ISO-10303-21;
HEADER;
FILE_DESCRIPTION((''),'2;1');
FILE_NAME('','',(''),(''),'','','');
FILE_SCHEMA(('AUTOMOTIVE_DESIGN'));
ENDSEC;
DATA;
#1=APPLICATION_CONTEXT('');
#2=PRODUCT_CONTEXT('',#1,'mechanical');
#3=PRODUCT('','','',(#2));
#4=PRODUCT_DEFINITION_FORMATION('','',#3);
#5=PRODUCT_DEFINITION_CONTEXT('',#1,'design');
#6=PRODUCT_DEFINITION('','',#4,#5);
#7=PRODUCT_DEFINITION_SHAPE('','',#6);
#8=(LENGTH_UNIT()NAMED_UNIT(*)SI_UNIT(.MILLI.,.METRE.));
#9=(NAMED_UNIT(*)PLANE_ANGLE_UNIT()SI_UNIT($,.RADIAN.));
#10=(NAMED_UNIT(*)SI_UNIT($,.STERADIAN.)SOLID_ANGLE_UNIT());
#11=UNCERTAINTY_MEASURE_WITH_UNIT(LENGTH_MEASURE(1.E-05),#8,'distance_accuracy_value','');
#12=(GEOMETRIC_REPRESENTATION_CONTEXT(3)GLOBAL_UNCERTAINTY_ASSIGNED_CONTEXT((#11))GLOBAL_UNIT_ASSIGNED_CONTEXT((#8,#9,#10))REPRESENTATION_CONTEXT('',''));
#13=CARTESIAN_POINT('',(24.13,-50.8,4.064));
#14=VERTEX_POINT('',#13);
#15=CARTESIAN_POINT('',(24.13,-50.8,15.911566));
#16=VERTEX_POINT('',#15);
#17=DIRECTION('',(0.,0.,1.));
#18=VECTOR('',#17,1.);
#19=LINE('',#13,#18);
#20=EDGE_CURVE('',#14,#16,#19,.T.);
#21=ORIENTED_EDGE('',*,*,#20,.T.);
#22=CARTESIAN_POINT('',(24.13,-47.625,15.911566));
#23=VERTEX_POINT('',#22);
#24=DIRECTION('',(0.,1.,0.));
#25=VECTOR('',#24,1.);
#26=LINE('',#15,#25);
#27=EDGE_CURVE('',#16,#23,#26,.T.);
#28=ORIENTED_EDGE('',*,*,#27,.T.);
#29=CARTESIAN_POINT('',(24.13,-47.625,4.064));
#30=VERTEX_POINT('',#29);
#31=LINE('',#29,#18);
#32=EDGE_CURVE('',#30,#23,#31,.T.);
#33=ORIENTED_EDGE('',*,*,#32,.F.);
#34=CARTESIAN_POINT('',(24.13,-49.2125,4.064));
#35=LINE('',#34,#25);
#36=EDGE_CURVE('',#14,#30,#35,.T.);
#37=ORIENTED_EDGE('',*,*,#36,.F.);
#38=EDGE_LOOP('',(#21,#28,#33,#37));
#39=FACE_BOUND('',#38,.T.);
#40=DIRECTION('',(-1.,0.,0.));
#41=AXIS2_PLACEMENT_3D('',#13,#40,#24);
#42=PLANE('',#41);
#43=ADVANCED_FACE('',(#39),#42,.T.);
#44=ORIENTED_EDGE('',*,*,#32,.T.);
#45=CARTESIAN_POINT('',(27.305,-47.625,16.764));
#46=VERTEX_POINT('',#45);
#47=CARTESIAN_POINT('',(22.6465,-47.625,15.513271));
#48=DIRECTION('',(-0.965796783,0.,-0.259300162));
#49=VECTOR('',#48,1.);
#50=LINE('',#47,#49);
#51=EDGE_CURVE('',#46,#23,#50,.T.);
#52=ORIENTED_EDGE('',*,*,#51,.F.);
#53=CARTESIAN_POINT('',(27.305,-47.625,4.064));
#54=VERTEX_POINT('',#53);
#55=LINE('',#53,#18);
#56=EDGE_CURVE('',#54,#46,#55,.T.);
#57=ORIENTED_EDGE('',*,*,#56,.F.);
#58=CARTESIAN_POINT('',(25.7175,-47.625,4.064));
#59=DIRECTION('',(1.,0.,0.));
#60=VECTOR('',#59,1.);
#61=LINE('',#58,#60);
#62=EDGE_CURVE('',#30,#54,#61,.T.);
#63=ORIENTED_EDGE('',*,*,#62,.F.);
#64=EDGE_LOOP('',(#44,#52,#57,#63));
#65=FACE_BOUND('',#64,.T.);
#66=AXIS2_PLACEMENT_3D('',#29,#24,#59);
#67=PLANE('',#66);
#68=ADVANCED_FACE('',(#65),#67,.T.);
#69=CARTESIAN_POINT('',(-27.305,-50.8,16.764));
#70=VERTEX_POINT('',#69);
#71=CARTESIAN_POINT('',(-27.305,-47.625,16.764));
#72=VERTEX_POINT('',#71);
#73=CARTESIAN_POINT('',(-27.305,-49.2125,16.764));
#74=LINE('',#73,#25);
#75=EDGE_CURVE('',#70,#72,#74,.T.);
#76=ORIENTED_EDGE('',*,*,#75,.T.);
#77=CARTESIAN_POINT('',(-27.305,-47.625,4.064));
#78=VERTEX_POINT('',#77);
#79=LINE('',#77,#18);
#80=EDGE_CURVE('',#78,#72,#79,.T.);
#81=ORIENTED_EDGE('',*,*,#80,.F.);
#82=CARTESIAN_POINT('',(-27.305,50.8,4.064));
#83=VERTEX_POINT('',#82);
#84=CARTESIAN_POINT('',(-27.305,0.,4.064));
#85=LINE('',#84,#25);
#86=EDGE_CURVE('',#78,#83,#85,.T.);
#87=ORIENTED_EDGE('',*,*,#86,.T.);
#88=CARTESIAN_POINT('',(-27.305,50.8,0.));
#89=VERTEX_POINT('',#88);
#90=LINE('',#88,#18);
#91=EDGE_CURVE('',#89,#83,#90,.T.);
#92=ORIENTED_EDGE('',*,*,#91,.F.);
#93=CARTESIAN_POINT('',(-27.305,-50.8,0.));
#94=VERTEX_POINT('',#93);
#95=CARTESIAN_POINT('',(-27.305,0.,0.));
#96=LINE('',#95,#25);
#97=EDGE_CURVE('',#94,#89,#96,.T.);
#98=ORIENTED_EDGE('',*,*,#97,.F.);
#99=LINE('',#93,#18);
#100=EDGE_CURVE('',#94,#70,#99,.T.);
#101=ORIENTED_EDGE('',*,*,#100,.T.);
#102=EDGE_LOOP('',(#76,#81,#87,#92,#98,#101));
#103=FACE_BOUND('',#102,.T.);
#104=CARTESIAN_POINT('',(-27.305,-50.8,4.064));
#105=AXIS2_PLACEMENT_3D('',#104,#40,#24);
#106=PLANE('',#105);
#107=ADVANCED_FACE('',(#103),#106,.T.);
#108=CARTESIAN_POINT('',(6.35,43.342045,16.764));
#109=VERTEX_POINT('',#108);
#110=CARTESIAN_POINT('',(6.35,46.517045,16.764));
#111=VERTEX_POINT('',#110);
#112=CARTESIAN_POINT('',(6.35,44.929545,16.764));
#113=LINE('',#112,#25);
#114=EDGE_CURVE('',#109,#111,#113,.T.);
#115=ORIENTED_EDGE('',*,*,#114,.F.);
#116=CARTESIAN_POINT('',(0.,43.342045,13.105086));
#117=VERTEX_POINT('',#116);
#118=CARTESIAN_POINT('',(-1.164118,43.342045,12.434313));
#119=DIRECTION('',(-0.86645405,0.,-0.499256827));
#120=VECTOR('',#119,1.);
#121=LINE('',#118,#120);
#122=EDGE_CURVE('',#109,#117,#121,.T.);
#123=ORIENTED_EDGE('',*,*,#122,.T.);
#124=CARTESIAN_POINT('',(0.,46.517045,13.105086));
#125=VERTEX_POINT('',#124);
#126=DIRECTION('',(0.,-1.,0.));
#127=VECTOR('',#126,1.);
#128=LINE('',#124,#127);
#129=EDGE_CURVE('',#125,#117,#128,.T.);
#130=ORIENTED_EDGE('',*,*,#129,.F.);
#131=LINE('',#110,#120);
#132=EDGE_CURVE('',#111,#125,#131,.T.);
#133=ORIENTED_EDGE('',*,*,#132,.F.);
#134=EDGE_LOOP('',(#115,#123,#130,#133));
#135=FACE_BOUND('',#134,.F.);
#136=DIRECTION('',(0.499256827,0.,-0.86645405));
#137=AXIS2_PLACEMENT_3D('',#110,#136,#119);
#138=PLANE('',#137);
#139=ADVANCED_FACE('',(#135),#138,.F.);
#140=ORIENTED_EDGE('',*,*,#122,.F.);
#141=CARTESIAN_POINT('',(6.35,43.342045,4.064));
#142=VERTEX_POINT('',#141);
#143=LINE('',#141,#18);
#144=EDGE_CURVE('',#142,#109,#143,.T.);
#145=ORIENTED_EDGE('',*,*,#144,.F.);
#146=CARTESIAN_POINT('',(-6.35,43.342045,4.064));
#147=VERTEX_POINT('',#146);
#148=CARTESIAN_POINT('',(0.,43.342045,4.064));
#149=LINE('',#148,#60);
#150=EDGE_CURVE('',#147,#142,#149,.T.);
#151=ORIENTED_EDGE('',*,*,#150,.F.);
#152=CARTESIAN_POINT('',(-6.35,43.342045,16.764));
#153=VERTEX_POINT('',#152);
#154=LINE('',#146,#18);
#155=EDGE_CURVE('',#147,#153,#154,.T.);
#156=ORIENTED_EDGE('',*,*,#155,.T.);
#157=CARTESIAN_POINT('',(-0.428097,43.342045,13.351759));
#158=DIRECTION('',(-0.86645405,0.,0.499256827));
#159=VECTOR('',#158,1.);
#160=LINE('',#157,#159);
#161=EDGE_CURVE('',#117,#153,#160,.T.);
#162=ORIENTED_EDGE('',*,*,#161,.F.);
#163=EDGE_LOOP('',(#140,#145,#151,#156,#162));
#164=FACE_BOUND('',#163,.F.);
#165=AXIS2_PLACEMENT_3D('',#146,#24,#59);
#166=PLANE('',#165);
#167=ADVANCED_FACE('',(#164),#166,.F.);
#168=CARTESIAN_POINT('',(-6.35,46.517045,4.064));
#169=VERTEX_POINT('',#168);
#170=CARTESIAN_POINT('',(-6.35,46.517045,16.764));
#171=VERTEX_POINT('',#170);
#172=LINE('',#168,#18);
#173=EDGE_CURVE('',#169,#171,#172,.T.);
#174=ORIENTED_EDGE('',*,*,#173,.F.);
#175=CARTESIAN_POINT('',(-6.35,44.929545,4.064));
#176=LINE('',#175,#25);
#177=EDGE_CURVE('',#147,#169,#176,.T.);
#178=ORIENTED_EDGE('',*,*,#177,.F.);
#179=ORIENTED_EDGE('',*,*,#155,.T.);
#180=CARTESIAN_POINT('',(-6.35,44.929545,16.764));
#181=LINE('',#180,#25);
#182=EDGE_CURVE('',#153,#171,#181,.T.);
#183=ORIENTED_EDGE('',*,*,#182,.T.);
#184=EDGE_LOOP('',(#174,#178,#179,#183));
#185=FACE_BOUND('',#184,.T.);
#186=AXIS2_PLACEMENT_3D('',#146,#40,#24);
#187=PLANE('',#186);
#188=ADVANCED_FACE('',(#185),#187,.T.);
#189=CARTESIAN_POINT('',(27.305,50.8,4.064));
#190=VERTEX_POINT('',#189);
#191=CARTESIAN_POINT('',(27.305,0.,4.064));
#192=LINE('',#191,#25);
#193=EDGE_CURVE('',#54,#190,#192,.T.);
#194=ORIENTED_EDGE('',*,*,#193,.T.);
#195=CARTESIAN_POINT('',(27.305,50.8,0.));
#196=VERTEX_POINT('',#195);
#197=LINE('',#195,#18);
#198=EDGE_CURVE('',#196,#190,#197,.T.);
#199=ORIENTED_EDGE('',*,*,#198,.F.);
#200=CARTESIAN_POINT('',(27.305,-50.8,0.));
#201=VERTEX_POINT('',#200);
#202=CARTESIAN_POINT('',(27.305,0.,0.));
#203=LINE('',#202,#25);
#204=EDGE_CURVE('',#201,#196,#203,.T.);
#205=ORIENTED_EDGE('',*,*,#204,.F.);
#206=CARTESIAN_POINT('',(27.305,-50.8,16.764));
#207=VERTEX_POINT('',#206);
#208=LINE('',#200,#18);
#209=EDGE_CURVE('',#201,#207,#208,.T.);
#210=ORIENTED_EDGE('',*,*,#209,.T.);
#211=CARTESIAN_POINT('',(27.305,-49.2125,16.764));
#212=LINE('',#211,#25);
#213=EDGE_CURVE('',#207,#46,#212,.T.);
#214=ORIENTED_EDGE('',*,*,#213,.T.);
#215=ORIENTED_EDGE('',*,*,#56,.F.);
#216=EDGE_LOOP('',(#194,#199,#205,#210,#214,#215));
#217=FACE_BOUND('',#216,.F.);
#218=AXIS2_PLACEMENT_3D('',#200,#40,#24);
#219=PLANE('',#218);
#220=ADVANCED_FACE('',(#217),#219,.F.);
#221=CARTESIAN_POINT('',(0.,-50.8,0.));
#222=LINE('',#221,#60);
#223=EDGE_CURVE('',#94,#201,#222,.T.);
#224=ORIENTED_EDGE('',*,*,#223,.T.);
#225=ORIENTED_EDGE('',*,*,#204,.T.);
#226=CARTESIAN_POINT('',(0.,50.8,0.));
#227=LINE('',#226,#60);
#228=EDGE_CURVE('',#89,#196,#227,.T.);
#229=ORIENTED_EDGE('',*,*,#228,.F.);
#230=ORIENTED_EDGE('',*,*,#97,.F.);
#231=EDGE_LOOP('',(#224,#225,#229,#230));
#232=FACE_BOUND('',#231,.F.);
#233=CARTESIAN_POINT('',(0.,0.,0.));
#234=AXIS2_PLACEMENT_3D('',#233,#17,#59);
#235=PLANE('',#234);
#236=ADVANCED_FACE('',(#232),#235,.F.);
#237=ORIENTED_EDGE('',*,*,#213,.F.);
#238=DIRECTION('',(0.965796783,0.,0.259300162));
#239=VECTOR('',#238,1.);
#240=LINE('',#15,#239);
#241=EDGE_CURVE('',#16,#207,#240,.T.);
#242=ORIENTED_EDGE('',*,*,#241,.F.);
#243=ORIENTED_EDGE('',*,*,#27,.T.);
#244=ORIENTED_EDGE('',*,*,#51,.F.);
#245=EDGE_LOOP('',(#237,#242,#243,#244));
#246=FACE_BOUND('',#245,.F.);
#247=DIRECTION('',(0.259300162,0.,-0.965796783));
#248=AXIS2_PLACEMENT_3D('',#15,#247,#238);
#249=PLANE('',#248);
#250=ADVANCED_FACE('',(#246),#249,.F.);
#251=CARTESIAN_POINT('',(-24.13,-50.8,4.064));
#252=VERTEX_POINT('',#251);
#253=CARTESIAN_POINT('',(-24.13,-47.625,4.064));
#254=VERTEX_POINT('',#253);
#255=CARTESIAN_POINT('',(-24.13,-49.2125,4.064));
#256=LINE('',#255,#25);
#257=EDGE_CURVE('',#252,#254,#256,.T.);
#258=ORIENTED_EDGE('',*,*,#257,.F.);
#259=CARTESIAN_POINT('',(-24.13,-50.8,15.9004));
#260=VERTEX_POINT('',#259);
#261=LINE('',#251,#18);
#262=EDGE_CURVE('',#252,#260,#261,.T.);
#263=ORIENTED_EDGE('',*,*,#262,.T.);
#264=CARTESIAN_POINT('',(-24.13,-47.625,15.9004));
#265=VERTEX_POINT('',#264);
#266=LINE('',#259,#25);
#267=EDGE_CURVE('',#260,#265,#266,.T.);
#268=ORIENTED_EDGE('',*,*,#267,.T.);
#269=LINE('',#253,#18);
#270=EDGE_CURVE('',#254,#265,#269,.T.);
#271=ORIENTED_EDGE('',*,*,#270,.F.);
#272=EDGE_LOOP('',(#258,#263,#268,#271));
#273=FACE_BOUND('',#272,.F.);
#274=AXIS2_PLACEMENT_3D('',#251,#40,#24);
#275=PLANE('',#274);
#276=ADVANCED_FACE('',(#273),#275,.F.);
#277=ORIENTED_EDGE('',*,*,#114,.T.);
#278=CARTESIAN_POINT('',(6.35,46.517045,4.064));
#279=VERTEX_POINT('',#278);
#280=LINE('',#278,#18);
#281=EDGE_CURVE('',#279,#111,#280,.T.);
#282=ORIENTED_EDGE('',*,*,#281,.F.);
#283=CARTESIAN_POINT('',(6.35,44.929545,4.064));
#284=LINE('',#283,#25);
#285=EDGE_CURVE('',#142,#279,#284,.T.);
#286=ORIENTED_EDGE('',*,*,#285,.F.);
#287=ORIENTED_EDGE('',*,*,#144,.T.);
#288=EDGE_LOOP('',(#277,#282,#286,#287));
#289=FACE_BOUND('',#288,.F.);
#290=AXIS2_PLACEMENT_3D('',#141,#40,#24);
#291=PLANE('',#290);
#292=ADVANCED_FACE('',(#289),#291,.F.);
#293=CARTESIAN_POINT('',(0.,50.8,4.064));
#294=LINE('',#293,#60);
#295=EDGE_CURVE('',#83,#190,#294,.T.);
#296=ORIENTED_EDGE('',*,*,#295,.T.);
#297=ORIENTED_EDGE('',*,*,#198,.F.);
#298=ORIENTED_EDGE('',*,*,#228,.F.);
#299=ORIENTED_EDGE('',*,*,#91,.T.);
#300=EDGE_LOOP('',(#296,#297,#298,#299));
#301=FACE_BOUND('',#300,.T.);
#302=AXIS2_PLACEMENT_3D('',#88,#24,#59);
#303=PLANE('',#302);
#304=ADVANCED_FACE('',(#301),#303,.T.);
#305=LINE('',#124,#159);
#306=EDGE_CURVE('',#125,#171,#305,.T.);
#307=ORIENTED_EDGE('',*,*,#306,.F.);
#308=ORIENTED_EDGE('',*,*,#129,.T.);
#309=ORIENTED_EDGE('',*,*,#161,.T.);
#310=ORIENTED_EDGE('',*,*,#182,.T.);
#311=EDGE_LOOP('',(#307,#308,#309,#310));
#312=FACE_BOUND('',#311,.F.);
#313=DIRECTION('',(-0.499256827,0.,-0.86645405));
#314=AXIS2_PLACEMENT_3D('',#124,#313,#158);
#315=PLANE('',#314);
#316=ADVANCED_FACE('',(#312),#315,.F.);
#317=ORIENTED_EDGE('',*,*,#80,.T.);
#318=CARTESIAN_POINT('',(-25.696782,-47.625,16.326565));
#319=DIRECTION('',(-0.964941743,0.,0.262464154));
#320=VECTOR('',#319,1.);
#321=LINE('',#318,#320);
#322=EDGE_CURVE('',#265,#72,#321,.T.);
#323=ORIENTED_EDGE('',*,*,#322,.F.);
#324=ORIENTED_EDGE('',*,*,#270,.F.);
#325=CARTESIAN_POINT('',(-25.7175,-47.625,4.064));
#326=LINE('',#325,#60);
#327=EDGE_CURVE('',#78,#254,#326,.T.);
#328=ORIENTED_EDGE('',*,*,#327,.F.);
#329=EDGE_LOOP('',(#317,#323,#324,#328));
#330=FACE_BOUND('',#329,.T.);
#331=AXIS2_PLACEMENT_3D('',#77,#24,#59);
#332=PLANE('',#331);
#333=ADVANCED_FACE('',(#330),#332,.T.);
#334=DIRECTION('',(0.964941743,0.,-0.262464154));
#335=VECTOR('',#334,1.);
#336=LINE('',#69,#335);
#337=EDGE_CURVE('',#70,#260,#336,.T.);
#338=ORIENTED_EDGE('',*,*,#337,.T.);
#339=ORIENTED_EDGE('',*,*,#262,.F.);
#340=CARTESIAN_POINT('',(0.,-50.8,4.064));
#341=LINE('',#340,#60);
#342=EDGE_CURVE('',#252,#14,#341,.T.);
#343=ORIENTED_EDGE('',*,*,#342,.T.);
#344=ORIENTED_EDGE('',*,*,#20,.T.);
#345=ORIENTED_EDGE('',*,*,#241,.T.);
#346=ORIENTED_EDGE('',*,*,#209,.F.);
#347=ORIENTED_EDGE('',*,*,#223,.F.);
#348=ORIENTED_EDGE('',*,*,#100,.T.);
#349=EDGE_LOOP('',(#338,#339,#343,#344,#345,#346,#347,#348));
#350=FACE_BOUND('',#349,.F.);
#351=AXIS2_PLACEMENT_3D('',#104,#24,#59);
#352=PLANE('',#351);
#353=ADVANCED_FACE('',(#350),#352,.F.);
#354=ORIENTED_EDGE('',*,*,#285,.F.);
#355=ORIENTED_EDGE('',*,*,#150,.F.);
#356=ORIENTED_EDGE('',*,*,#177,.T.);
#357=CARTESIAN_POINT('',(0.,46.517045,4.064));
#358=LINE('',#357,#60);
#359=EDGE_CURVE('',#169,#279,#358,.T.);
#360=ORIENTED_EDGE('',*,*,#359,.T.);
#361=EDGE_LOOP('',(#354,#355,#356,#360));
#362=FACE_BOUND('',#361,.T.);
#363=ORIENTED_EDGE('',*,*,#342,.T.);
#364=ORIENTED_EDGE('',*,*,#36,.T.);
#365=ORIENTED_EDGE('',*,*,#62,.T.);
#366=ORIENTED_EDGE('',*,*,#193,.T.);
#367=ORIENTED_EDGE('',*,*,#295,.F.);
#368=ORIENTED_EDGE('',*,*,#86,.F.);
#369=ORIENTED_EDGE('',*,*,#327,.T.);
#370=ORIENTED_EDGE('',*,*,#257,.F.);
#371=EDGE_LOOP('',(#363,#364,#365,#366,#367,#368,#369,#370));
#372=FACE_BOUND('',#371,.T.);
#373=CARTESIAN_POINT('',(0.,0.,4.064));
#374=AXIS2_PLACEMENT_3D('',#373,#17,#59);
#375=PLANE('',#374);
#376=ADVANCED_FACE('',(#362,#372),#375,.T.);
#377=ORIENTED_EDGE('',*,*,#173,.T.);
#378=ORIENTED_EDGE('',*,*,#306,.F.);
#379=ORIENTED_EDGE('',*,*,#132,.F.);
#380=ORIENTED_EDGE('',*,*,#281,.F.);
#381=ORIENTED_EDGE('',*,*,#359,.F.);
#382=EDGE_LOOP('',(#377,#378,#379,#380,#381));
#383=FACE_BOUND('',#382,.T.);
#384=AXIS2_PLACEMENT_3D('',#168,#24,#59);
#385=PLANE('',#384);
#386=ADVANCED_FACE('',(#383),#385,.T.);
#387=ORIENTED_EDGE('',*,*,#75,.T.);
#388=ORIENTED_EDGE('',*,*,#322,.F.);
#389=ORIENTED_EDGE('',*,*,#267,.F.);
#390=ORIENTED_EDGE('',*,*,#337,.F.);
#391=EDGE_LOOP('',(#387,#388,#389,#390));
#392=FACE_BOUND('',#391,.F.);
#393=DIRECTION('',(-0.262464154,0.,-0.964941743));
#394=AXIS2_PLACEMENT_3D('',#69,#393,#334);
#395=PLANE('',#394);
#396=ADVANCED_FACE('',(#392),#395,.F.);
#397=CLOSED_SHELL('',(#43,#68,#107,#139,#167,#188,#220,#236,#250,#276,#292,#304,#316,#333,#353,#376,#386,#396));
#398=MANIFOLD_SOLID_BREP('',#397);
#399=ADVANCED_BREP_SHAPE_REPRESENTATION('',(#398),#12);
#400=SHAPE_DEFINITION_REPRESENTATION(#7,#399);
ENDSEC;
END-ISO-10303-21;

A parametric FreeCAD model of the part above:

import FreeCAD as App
import Part
import Sketcher
Q = App.Units.Quantity


def add_polygon(sketch, points):
    """Adds a closed chain of lines whose ends are joined by coincident constraints."""
    first, n = sketch.GeometryCount, len(points)
    for a, b in zip(points, points[1:] + points[:1]):
        sketch.addGeometry(Part.LineSegment(App.Vector(*a, 0), App.Vector(*b, 0)), False)
    for i in range(n):
        sketch.addConstraint(Sketcher.Constraint("Coincident", first + i, 2, first + (i + 1) % n, 1))

doc = App.newDocument("Part")
body = doc.addObject("PartDesign::Body", "Body")

sketch1 = body.newObject("Sketcher::SketchObject", "Sketch")
sketch1.AttachmentSupport = (doc.getObject("XY_Plane"), [""])
sketch1.MapMode = "FlatFace"
add_polygon(sketch1, [(-27, 51), (-27, -51), (27, -51), (27, 51)])
sketch1.addConstraint([
    Sketcher.Constraint("Vertical", 0),
    Sketcher.Constraint("Horizontal", 1),
    Sketcher.Constraint("Vertical", 2),
    Sketcher.Constraint("Horizontal", 3),
    Sketcher.Constraint("Symmetric", 0, 2, 2, 2, -1, 1),
    Sketcher.Constraint("DistanceY", 0, 2, 0, 1, Q("4 in")),
    Sketcher.Constraint("DistanceX", 1, 1, 1, 2, Q("2.15 in")),
])
pad1 = body.newObject("PartDesign::Pad", "Pad")
pad1.Profile = sketch1
pad1.Length = Q("0.16 in")

sketch2 = body.newObject("Sketcher::SketchObject", "Sketch001")
sketch2.AttachmentSupport = (doc.getObject("XY_Plane"), [""])
sketch2.MapMode = "FlatFace"
sketch2.AttachmentOffset = App.Placement(App.Vector(0, 0, 0.16 * 25.4), App.Rotation())
add_polygon(sketch2, [(-6.3, 46.5), (-6.3, 43.3), (6.3, 43.3), (6.3, 46.5)])
sketch2.addConstraint([
    Sketcher.Constraint("Vertical", 0),
    Sketcher.Constraint("Horizontal", 1),
    Sketcher.Constraint("Vertical", 2),
    Sketcher.Constraint("Horizontal", 3),
    Sketcher.Constraint("DistanceX", 1, 1, 1, 2, Q("0.5 in")),
    Sketcher.Constraint("DistanceY", 0, 2, 0, 1, Q("0.125 in")),
    Sketcher.Constraint("DistanceX", 0, 2, -1, 1, Q("0.25 in")),
    Sketcher.Constraint("DistanceY", -1, 1, 0, 2, 43.342045),
])
pad2 = body.newObject("PartDesign::Pad", "Pad001")
pad2.Profile = sketch2
pad2.Length = Q("0.5 in")

sketch3 = body.newObject("Sketcher::SketchObject", "Sketch002")
sketch3.AttachmentSupport = (doc.getObject("XZ_Plane"), [""])
sketch3.MapMode = "FlatFace"
sketch3.AttachmentOffset = App.Placement(App.Vector(0, 0, -46.517045), App.Rotation())
add_polygon(sketch3, [(6, 17), (0, 13), (-6, 17)])
sketch3.addConstraint([
    Sketcher.Constraint("Horizontal", 2),
    Sketcher.Constraint("PointOnObject", 0, 2, -2),
    Sketcher.Constraint("Equal", 0, 1),
    Sketcher.Constraint("DistanceX", 2, 1, 2, 2, Q("0.5 in")),
    Sketcher.Constraint("DistanceY", -1, 1, 1, 2, Q("0.66 in")),
    Sketcher.Constraint("Distance", 0, 7.328721),
])
pocket1 = body.newObject("PartDesign::Pocket", "Pocket")
pocket1.Profile = sketch3
pocket1.Length = Q("1 in")
pocket1.Reversed = True

sketch4 = body.newObject("Sketcher::SketchObject", "Sketch003")
sketch4.AttachmentSupport = (doc.getObject("XY_Plane"), [""])
sketch4.MapMode = "FlatFace"
sketch4.AttachmentOffset = App.Placement(App.Vector(0, 0, 0.16 * 25.4), App.Rotation())
add_polygon(sketch4, [(-27.3, -47.6), (-27.3, -50.8), (-24.1, -50.8), (-24.1, -47.6)])
add_polygon(sketch4, [(24.1, -47.6), (24.1, -50.8), (27.3, -50.8), (27.3, -47.6)])
sketch4.addConstraint([
    Sketcher.Constraint("Vertical", 0),
    Sketcher.Constraint("Horizontal", 1),
    Sketcher.Constraint("Vertical", 2),
    Sketcher.Constraint("Horizontal", 3),
    Sketcher.Constraint("Vertical", 4),
    Sketcher.Constraint("Horizontal", 5),
    Sketcher.Constraint("Vertical", 6),
    Sketcher.Constraint("Horizontal", 7),
    Sketcher.Constraint("Symmetric", 1, 2, 4, 2, -2),
    Sketcher.Constraint("Symmetric", 3, 2, 6, 2, -2),
    Sketcher.Constraint("Equal", 7, 0),
    Sketcher.Constraint("DistanceY", 0, 2, -1, 1, Q("2 in")),
    Sketcher.Constraint("DistanceX", 1, 2, 4, 2, Q("1.9 in")),
    Sketcher.Constraint("DistanceX", 1, 1, 1, 2, Q("0.125 in")),
])
pad3 = body.newObject("PartDesign::Pad", "Pad002")
pad3.Profile = sketch4
pad3.Length = Q("0.5 in")

sketch5 = body.newObject("Sketcher::SketchObject", "Sketch004")
sketch5.AttachmentSupport = (doc.getObject("XZ_Plane"), [""])
sketch5.MapMode = "FlatFace"
sketch5.AttachmentOffset = App.Placement(App.Vector(0, 0, 2 * 25.4), App.Rotation())
add_polygon(sketch5, [(-24.1, 16.8), (-27.3, 16.8), (-24.1, 15.9)])
add_polygon(sketch5, [(24.1, 15.9), (27.3, 16.8), (24.1, 16.8)])
sketch5.addConstraint([
    Sketcher.Constraint("Horizontal", 0),
    Sketcher.Constraint("Vertical", 2),
    Sketcher.Constraint("Horizontal", 4),
    Sketcher.Constraint("Vertical", 5),
    Sketcher.Constraint("Symmetric", 0, 2, 3, 2, -2),
    Sketcher.Constraint("Equal", 0, 4),
    Sketcher.Constraint("DistanceX", 2, 2, 4, 2, Q("1.9 in")),
    Sketcher.Constraint("DistanceX", 0, 2, 0, 1, Q("0.125 in")),
    Sketcher.Constraint("DistanceY", 2, 1, 2, 2, Q("0.034 in")),
    Sketcher.Constraint("DistanceY", -1, 1, 0, 2, Q("0.66 in")),
    Sketcher.Constraint("Distance", 3, 3.287441),
])
pocket2 = body.newObject("PartDesign::Pocket", "Pocket001")
pocket2.Profile = sketch5
pocket2.Length = Q("1 in")

doc.recompute()
